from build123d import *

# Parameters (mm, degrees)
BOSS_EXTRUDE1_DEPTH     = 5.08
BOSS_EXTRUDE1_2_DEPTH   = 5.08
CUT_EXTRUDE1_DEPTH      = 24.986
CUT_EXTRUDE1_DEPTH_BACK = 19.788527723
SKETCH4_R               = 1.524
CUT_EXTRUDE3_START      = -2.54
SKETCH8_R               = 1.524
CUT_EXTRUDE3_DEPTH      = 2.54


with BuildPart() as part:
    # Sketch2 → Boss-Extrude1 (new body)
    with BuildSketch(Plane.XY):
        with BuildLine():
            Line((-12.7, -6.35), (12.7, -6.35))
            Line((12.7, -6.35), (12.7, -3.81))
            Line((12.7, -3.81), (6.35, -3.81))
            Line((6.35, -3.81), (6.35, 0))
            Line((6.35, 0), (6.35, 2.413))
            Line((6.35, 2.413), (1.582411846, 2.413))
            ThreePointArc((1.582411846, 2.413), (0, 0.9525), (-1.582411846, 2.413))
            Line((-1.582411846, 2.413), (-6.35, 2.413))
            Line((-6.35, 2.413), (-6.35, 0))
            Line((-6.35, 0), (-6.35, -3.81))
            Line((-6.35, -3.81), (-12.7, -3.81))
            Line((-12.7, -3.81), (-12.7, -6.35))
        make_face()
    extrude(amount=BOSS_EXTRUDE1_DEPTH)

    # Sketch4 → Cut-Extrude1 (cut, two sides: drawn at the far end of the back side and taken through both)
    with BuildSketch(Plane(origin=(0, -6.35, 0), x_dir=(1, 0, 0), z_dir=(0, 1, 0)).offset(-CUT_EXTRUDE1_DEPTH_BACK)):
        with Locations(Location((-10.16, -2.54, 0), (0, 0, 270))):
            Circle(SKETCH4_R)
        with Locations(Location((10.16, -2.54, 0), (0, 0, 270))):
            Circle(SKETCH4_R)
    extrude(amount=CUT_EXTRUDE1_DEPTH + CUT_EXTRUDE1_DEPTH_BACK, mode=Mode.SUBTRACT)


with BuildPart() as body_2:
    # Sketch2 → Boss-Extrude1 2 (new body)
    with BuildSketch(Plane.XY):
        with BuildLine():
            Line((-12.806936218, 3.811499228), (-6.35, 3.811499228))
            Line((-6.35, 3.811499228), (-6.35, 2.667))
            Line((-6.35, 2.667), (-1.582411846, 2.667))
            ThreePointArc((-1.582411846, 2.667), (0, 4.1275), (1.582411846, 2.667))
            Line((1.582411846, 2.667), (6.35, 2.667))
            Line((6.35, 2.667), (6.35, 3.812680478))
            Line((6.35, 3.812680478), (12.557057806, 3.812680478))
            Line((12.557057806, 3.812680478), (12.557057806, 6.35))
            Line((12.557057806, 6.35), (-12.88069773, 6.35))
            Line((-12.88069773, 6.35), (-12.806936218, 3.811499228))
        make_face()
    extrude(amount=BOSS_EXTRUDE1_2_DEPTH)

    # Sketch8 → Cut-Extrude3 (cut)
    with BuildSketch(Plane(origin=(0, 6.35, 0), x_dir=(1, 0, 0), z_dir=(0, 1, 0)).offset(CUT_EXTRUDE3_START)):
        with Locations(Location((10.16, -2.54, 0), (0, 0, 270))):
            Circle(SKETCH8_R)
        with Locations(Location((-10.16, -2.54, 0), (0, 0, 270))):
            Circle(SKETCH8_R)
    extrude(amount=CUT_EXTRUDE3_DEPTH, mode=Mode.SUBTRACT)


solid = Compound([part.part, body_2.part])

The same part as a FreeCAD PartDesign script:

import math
import FreeCAD as App
import Part
import Sketcher
from FreeCAD import Vector
Q = App.Units.Quantity

doc = App.newDocument("Part")
body = doc.addObject("PartDesign::Body", "Body")

# Sketch on XY plane
sketch1 = doc.addObject("Sketcher::SketchObject", "Sketch")
body.addObject(sketch1)
sketch1.AttachmentSupport = (doc.XY_Plane, [""])
sketch1.MapMode = "FlatFace"
sketch1.addGeometry([
    Part.LineSegment(Vector(-12.7, -6.3, 0), Vector(12.7, -6.3, 0)),  # 0
    Part.LineSegment(Vector(12.7, -6.3, 0), Vector(12.7, -3.8, 0)),  # 1
    Part.LineSegment(Vector(12.7, -3.8, 0), Vector(6.3, -3.8, 0)),  # 2
    Part.LineSegment(Vector(6.3, -3.8, 0), Vector(6.3, 2.4, 0)),  # 3
    Part.LineSegment(Vector(6.3, 2.4, 0), Vector(1.6, 2.4, 0)),  # 4
    Part.ArcOfCircle(Part.Circle(Vector(0, 2.5, 0), Vector(0, 0, 1), 1.6), math.radians(-175), math.radians(-5)),  # 5
    Part.LineSegment(Vector(-1.6, 2.4, 0), Vector(-6.3, 2.4, 0)),  # 6
    Part.LineSegment(Vector(-6.3, 2.4, 0), Vector(-6.3, -3.8, 0)),  # 7
    Part.LineSegment(Vector(-6.3, -3.8, 0), Vector(-12.7, -3.8, 0)),  # 8
    Part.LineSegment(Vector(-12.7, -3.8, 0), Vector(-12.7, -6.3, 0)),  # 9
], False)
sketch1.addConstraint([
    Sketcher.Constraint("Coincident", 0, 2, 1, 1),
    Sketcher.Constraint("Coincident", 1, 2, 2, 1),
    Sketcher.Constraint("Coincident", 2, 2, 3, 1),
    Sketcher.Constraint("Coincident", 3, 2, 4, 1),
    Sketcher.Constraint("Coincident", 4, 2, 5, 2),
    Sketcher.Constraint("Coincident", 5, 1, 6, 1),
    Sketcher.Constraint("Coincident", 6, 2, 7, 1),
    Sketcher.Constraint("Coincident", 7, 2, 8, 1),
    Sketcher.Constraint("Coincident", 8, 2, 9, 1),
    Sketcher.Constraint("Coincident", 9, 2, 0, 1),
    Sketcher.Constraint("Horizontal", 0),
    Sketcher.Constraint("Vertical", 1),
    Sketcher.Constraint("Horizontal", 2),
    Sketcher.Constraint("Vertical", 3),
    Sketcher.Constraint("Horizontal", 4),
    Sketcher.Constraint("Horizontal", 6),
    Sketcher.Constraint("Vertical", 7),
    Sketcher.Constraint("Horizontal", 8),
    Sketcher.Constraint("Vertical", 9),
    Sketcher.Constraint("Symmetric", 4, 2, 5, 1, -2),
    Sketcher.Constraint("Symmetric", 2, 2, 7, 2, -2),
    Sketcher.Constraint("Equal", 2, 8),
    Sketcher.Constraint("DistanceX", 0, 1, 0, 2, Q("1 in")),
    Sketcher.Constraint("DistanceY", 1, 1, 1, 2, Q("0.1 in")),
    Sketcher.Constraint("Radius", 5, Q("0.0625 in")),
    Sketcher.Constraint("DistanceX", 2, 2, 2, 1, Q("0.25 in")),
    Sketcher.Constraint("DistanceY", -1, 1, 5, 3, Q("0.1 in")),
    Sketcher.Constraint("DistanceY", 3, 1, 3, 2, Q("0.245 in")),
    Sketcher.Constraint("DistanceY", 0, 2, -1, 1, Q("0.25 in")),
])
pad1 = doc.addObject("PartDesign::Pad", "Pad")
body.addObject(pad1)
pad1.Profile = sketch1
pad1.Length = Q("0.2 in")

# Sketch on XZ plane
sketch2 = doc.addObject("Sketcher::SketchObject", "Sketch001")
body.addObject(sketch2)
sketch2.AttachmentSupport = (doc.XZ_Plane, [""])
sketch2.MapMode = "FlatFace"
sketch2.AttachmentOffset = App.Placement(Vector(0, 0, 0.25 * 25.4), App.Rotation())
sketch2.addGeometry([
    Part.Circle(Vector(-10.2, 2.5, 0), Vector(0, 0, 1), 1.5),
    Part.Circle(Vector(10.2, 2.5, 0), Vector(0, 0, 1), 1.5),
], False)
sketch2.addConstraint([
    Sketcher.Constraint("Equal", 0, 1),
    Sketcher.Constraint("Symmetric", 0, 3, 1, 3, -2),
    Sketcher.Constraint("Diameter", 0, Q("0.12 in")),
    Sketcher.Constraint("DistanceX", 0, 3, -1, 1, Q("0.4 in")),
    Sketcher.Constraint("DistanceY", -1, 1, 0, 3, Q("0.1 in")),
])
pocket1 = doc.addObject("PartDesign::Pocket", "Pocket")
body.addObject(pocket1)
pocket1.Profile = sketch2
pocket1.Type = "ThroughAll"
pocket1.Midplane = True
body2 = doc.addObject("PartDesign::Body", "Body001")

# Sketch on XY plane
sketch3 = doc.addObject("Sketcher::SketchObject", "Sketch002")
body2.addObject(sketch3)
sketch3.AttachmentSupport = (doc.getObject("XY_Plane001"), [""])
sketch3.MapMode = "FlatFace"
sketch3.addGeometry([
    Part.LineSegment(Vector(-12.8, 3.8, 0), Vector(-6.3, 3.8, 0)),  # 0
    Part.LineSegment(Vector(-6.3, 3.8, 0), Vector(-6.3, 2.7, 0)),  # 1
    Part.LineSegment(Vector(-6.3, 2.7, 0), Vector(-1.6, 2.7, 0)),  # 2
    Part.ArcOfCircle(Part.Circle(Vector(0, 2.5, 0), Vector(0, 0, 1), 1.6), math.radians(5), math.radians(175)),  # 3
    Part.LineSegment(Vector(1.6, 2.7, 0), Vector(6.3, 2.7, 0)),  # 4
    Part.LineSegment(Vector(6.3, 2.7, 0), Vector(6.3, 3.8, 0)),  # 5
    Part.LineSegment(Vector(6.3, 3.8, 0), Vector(12.6, 3.8, 0)),  # 6
    Part.LineSegment(Vector(12.6, 3.8, 0), Vector(12.6, 6.3, 0)),  # 7
    Part.LineSegment(Vector(12.6, 6.3, 0), Vector(-12.9, 6.3, 0)),  # 8
    Part.LineSegment(Vector(-12.9, 6.3, 0), Vector(-12.8, 3.8, 0)),  # 9
], False)
sketch3.addConstraint([
    Sketcher.Constraint("Coincident", 0, 2, 1, 1),
    Sketcher.Constraint("Coincident", 1, 2, 2, 1),
    Sketcher.Constraint("Coincident", 2, 2, 3, 2),
    Sketcher.Constraint("Coincident", 3, 1, 4, 1),
    Sketcher.Constraint("Coincident", 4, 2, 5, 1),
    Sketcher.Constraint("Coincident", 5, 2, 6, 1),
    Sketcher.Constraint("Coincident", 6, 2, 7, 1),
    Sketcher.Constraint("Coincident", 7, 2, 8, 1),
    Sketcher.Constraint("Coincident", 8, 2, 9, 1),
    Sketcher.Constraint("Coincident", 9, 2, 0, 1),
    Sketcher.Constraint("Horizontal", 0),
    Sketcher.Constraint("Vertical", 1),
    Sketcher.Constraint("Horizontal", 2),
    Sketcher.Constraint("Horizontal", 4),
    Sketcher.Constraint("Vertical", 5),
    Sketcher.Constraint("Horizontal", 6),
    Sketcher.Constraint("Vertical", 7),
    Sketcher.Constraint("Horizontal", 8),
    Sketcher.Constraint("Symmetric", 2, 2, 3, 1, -2),
    Sketcher.Constraint("Equal", 2, 4),
    Sketcher.Constraint("Radius", 3, Q("0.0625 in")),
    Sketcher.Constraint("DistanceY", -1, 1, 3, 3, Q("0.1 in")),
    Sketcher.Constraint("DistanceX", 1, 2, 4, 2, Q("0.5 in")),
    Sketcher.Constraint("DistanceY", -1, 1, 7, 2, Q("0.25 in")),
    Sketcher.Constraint("DistanceY", -1, 1, 1, 2, Q("0.105 in")),
    Sketcher.Constraint("DistanceY", 1, 2, 1, 1, 1.144499),
    Sketcher.Constraint("DistanceY", 5, 1, 5, 2, 1.14568),
    Sketcher.Constraint("DistanceX", 0, 1, 0, 2, 6.456936),
    Sketcher.Constraint("DistanceX", 6, 1, 6, 2, 6.207058),
    Sketcher.Constraint("DistanceX", 8, 2, 8, 1, 25.437756),
])
pad2 = doc.addObject("PartDesign::Pad", "Pad001")
body2.addObject(pad2)
pad2.Profile = sketch3
pad2.Length = Q("0.2 in")

# Sketch on XZ plane
sketch4 = doc.addObject("Sketcher::SketchObject", "Sketch003")
body2.addObject(sketch4)
sketch4.AttachmentSupport = (doc.getObject("XZ_Plane001"), [""])
sketch4.MapMode = "FlatFace"
sketch4.AttachmentOffset = App.Placement(Vector(0, 0, -0.15 * 25.4), App.Rotation())
sketch4.addGeometry([
    Part.Circle(Vector(10.2, 2.5, 0), Vector(0, 0, 1), 1.5),
    Part.Circle(Vector(-10.2, 2.5, 0), Vector(0, 0, 1), 1.5),
], False)
sketch4.addConstraint([
    Sketcher.Constraint("Equal", 0, 1),
    Sketcher.Constraint("Symmetric", 0, 3, 1, 3, -2),
    Sketcher.Constraint("Diameter", 0, Q("0.12 in")),
    Sketcher.Constraint("DistanceX", -1, 1, 0, 3, Q("0.4 in")),
    Sketcher.Constraint("DistanceY", -1, 1, 0, 3, Q("0.1 in")),
])
pocket2 = doc.addObject("PartDesign::Pocket", "Pocket001")
body2.addObject(pocket2)
pocket2.Profile = sketch4
pocket2.Length = Q("0.1 in")

doc.recompute()
